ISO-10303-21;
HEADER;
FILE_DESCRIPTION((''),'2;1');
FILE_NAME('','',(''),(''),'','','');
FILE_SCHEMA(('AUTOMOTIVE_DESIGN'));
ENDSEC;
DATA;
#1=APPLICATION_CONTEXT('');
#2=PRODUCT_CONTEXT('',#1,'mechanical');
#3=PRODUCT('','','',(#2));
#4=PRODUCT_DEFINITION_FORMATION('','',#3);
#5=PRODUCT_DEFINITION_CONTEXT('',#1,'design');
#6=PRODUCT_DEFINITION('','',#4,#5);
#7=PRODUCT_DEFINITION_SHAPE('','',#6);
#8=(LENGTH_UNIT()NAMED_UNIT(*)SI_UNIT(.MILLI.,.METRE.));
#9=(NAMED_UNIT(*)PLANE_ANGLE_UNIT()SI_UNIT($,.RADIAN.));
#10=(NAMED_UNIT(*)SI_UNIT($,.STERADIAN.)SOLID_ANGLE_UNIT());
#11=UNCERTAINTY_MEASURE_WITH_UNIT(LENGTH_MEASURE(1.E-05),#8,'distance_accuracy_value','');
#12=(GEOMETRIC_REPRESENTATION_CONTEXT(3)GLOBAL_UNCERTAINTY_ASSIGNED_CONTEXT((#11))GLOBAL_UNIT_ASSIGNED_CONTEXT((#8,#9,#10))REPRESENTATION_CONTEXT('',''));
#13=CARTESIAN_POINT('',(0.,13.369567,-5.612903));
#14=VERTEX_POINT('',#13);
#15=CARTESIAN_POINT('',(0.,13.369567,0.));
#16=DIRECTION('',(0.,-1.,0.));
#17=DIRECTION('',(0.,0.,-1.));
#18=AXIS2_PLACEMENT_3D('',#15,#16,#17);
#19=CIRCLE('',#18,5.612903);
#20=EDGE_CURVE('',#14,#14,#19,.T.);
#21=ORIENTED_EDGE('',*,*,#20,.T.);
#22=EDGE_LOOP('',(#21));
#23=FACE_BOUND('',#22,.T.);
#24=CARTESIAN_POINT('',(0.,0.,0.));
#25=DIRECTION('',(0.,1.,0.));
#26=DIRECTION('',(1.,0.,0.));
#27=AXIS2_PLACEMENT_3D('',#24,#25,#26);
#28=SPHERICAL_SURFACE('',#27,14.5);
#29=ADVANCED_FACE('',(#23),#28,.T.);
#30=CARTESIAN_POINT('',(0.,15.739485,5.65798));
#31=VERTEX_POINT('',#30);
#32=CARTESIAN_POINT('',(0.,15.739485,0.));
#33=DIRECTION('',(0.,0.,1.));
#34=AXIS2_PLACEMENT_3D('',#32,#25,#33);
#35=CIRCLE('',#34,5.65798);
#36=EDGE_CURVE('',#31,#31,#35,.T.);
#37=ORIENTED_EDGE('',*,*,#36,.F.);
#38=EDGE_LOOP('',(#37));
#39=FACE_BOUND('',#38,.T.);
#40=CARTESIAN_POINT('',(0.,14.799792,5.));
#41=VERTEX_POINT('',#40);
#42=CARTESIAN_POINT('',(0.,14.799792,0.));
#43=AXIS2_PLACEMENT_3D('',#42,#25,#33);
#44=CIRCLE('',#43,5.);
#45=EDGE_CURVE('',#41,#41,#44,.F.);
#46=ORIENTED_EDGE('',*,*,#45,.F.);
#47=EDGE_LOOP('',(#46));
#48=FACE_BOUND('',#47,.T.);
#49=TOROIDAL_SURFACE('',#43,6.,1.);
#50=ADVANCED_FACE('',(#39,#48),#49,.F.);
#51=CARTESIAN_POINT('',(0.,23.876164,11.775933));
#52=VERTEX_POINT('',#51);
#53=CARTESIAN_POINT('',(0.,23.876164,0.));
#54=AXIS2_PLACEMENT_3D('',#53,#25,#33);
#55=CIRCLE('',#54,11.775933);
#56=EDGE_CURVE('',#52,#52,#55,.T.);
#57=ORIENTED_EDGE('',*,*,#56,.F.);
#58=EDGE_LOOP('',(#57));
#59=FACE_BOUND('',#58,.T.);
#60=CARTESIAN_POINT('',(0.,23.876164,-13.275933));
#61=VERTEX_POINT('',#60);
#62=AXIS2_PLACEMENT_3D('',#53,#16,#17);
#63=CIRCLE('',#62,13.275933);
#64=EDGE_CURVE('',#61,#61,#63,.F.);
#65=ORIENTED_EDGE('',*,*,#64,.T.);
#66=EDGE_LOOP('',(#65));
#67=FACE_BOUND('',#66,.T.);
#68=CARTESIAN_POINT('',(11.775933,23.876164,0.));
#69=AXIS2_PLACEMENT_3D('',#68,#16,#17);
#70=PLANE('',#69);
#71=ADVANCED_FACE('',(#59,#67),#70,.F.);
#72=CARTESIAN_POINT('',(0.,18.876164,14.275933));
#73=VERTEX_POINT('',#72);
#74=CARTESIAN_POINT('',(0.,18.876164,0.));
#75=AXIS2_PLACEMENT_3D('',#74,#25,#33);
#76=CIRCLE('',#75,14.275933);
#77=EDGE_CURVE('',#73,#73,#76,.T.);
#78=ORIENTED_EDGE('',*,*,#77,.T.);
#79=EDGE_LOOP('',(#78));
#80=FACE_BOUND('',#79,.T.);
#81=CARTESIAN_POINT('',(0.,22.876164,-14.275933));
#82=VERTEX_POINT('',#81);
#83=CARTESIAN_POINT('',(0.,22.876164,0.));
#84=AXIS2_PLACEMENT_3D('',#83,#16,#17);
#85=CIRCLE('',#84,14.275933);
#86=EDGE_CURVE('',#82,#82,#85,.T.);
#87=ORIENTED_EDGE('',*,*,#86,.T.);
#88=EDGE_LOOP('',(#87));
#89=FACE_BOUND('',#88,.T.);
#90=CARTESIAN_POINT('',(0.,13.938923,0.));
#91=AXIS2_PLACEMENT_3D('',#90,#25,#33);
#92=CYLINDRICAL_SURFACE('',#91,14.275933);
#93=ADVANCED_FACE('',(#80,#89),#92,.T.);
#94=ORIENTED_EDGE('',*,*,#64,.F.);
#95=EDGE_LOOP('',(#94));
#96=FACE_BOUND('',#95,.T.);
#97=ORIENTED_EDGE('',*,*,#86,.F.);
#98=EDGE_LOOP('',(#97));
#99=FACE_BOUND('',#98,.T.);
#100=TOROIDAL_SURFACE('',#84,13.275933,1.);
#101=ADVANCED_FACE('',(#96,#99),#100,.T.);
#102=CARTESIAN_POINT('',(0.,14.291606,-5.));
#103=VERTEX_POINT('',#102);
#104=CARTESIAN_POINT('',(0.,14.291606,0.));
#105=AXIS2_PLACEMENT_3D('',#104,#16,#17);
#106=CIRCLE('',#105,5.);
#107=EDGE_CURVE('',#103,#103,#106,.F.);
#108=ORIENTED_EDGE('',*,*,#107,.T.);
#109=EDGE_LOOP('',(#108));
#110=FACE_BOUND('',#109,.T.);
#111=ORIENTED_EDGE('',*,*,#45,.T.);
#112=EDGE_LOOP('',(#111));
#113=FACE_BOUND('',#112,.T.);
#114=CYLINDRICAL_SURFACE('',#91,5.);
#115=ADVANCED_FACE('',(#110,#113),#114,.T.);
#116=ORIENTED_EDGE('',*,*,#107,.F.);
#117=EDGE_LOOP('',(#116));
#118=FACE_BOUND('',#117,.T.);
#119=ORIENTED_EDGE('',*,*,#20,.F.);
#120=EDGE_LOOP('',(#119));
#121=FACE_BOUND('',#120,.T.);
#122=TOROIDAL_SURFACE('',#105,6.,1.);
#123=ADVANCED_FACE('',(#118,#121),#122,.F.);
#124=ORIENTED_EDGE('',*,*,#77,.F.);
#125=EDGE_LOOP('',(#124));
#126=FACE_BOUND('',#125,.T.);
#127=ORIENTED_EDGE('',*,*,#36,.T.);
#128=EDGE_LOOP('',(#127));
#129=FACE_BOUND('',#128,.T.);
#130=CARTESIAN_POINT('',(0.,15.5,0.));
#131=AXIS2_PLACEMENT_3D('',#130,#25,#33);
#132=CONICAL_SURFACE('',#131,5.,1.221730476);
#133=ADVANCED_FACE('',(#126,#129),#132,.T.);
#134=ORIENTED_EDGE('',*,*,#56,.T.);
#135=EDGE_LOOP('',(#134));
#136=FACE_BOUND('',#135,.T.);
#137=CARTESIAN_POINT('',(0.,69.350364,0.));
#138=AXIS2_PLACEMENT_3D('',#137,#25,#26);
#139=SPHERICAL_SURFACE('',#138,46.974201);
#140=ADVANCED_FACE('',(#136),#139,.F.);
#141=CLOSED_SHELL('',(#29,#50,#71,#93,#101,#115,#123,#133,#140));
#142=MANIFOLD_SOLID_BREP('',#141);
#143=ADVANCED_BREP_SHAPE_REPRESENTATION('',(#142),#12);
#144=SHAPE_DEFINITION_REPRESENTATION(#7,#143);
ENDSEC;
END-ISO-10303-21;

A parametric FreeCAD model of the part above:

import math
import FreeCAD as App
import Part
import Sketcher

V = App.Vector
Q = App.Units.Quantity


def edges_at(feature, points):
    """Names of the edges that pass closest to the given points."""
    edges = feature.Shape.Edges
    near = lambda p: min(range(len(edges)), key=lambda i: edges[i].distToShape(Part.Vertex(*p))[0])
    return sorted({f"Edge{near(p) + 1}" for p in points})

doc = App.newDocument("Part")
body = doc.addObject("PartDesign::Body", "Body")

sketch1 = body.newObject("Sketcher::SketchObject", "Sketch")
sketch1.AttachmentSupport = (doc.getObject("XY_Plane"), [""])
sketch1.MapMode = "FlatFace"
sketch1.addGeometry([
    Part.ArcOfCircle(Part.Circle(V(0, 0, 0), V(0, 0, 1), 14.5), math.radians(-90), math.radians(69.828729)),
    Part.LineSegment(V(5, 13.610658, 0), V(5, 15.5, 0)),
    Part.LineSegment(V(5, 15.5, 0), V(14.275933, 18.876164, 0)),
    Part.LineSegment(V(14.275933, 18.876164, 0), V(14.275933, 23.876164, 0)),
    Part.LineSegment(V(14.275933, 23.876164, 0), V(11.775933, 23.876164, 0)),
    Part.ArcOfCircle(Part.Circle(V(0, 69.350364, 0), V(0, 0, 1), 46.974201), math.radians(-90), math.radians(-75.48169)),
    Part.LineSegment(V(0, 22.376164, 0), V(0, -14.5, 0)),
], False)
sketch1.addConstraint([
    Sketcher.Constraint("Coincident", 0, 2, 1, 1),
    Sketcher.Constraint("Coincident", 1, 2, 2, 1),
    Sketcher.Constraint("Coincident", 2, 2, 3, 1),
    Sketcher.Constraint("Coincident", 3, 2, 4, 1),
    Sketcher.Constraint("Coincident", 4, 2, 5, 2),
    Sketcher.Constraint("Coincident", 5, 1, 6, 1),
    Sketcher.Constraint("Coincident", 6, 2, 0, 1),
    Sketcher.Constraint("Vertical", 1),
    Sketcher.Constraint("Vertical", 3),
    Sketcher.Constraint("Horizontal", 4),
    Sketcher.Constraint("Vertical", 6),
    Sketcher.Constraint("Coincident", 0, 3, -1, 1),
    Sketcher.Constraint("PointOnObject", 5, 3, -2),
    Sketcher.Constraint("PointOnObject", 5, 1, -2),
    Sketcher.Constraint("Radius", 0, 14.5),
    Sketcher.Constraint("DistanceY", 3, 1, 3, 2, 5.0),
    Sketcher.Constraint("Angle", 2, Q("20 deg")),
    Sketcher.Constraint("DistanceX", 4, 2, 4, 1, 2.5),
    Sketcher.Constraint("DistanceX", -1, 1, 0, 2, 5.0),
    Sketcher.Constraint("DistanceY", 6, 2, 1, 2, 30.0),
    Sketcher.Constraint("Radius", 5, 46.974201),
    Sketcher.Constraint("DistanceY", 5, 1, 4, 2, 1.5),
])
revolution = body.newObject("PartDesign::Revolution", "Revolution")
revolution.Profile = sketch1
revolution.ReferenceAxis = (sketch1, ["V_Axis"])
revolution.Angle = 360
doc.recompute()

fillet = body.newObject("PartDesign::Fillet", "Fillet")
fillet.Base = (revolution, edges_at(revolution, [(0, 13.611, -5), (0, 23.876, -14.276), (0, 15.5, -5)]))
fillet.Radius = 1

doc.recompute()
